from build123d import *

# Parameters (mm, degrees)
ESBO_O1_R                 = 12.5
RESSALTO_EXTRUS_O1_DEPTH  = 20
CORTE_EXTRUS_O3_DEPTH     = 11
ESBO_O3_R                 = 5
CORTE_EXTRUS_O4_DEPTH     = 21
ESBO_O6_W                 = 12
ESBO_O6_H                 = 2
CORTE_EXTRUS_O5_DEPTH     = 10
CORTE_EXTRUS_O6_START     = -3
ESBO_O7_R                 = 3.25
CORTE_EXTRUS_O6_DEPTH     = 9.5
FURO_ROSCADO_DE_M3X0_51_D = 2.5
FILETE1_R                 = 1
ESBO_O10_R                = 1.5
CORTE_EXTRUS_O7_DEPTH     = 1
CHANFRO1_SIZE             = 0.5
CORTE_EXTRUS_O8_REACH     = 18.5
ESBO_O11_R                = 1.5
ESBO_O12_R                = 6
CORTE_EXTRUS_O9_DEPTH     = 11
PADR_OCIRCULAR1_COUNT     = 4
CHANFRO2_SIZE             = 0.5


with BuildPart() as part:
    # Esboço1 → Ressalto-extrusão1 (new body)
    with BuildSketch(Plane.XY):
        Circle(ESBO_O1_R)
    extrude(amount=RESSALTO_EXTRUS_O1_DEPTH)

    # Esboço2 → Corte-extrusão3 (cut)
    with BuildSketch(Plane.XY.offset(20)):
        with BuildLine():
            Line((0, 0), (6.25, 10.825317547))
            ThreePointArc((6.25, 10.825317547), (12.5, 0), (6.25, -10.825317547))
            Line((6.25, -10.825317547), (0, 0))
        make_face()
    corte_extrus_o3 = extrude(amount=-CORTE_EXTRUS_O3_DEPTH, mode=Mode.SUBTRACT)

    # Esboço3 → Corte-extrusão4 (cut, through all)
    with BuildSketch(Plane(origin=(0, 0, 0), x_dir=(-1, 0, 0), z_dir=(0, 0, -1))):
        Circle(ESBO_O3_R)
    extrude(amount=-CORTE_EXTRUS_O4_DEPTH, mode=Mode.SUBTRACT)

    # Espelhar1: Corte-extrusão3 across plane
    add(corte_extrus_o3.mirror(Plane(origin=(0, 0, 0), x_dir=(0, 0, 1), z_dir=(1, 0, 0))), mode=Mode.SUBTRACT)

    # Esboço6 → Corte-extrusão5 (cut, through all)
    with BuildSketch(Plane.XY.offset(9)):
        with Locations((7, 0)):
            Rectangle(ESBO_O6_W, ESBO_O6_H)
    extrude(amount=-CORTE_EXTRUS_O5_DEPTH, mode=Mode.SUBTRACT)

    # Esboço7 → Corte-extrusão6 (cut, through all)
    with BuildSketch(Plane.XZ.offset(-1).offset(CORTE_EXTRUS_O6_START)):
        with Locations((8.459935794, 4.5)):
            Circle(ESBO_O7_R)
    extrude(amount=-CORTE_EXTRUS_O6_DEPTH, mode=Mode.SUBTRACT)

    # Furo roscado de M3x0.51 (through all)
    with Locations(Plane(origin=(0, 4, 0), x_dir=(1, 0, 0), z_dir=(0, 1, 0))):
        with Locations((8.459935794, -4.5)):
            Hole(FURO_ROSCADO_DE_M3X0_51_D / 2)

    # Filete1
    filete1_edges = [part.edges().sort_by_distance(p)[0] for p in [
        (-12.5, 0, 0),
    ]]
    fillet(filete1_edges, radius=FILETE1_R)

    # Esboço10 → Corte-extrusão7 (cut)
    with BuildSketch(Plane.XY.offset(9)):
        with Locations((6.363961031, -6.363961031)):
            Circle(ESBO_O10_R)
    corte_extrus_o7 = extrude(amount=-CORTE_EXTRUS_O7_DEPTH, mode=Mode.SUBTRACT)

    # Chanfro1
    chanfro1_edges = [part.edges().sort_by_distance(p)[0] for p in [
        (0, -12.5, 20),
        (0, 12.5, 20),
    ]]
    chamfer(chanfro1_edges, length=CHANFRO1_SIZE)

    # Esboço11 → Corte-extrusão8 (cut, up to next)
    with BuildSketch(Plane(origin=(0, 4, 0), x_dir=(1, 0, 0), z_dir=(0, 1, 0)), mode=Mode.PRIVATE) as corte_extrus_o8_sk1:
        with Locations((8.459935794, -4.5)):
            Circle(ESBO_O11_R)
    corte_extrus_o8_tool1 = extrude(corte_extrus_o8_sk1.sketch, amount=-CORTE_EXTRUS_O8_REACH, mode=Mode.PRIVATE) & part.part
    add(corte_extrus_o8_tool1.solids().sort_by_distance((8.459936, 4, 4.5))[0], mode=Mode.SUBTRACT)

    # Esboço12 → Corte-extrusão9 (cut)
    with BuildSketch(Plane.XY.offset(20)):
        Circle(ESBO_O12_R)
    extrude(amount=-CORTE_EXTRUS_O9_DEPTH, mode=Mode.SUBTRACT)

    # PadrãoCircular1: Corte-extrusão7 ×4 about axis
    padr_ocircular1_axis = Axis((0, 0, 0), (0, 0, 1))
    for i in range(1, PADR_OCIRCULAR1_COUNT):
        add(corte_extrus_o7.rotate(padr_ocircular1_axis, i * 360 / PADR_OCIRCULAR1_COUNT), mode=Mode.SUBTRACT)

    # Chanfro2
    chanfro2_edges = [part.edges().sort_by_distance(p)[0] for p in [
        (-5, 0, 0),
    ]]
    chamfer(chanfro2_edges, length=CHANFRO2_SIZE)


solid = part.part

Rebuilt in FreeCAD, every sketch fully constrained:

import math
import FreeCAD as App
import Part
import Sketcher
from FreeCAD import Vector
Q = App.Units.Quantity


def edges_at(feature, points):
    """Names of the edges that pass closest to the given points."""
    edges = feature.Shape.Edges
    near = lambda p: min(range(len(edges)), key=lambda i: edges[i].distToShape(Part.Vertex(*p))[0])
    return sorted({f"Edge{near(p) + 1}" for p in points})


def add_polygon(sketch, points):
    """Adds a closed chain of lines whose ends are joined by coincident constraints."""
    first, n = sketch.GeometryCount, len(points)
    for a, b in zip(points, points[1:] + points[:1]):
        sketch.addGeometry(Part.LineSegment(App.Vector(*a, 0), App.Vector(*b, 0)), False)
    for i in range(n):
        sketch.addConstraint(Sketcher.Constraint("Coincident", first + i, 2, first + (i + 1) % n, 1))

doc = App.newDocument("Part")
body = doc.addObject("PartDesign::Body", "Body")

sketch1 = doc.addObject("Sketcher::SketchObject", "Sketch")
body.addObject(sketch1)
sketch1.AttachmentSupport = (doc.XY_Plane, [""])
sketch1.MapMode = "FlatFace"
sketch1.addGeometry(Part.Circle(Vector(0, 0, 0), Vector(0, 0, 1), 12), False)
sketch1.addConstraint(Sketcher.Constraint("Coincident", 0, 3, -1, 1))
sketch1.addConstraint(Sketcher.Constraint("Diameter", 0, Q("25 mm")))
pad1 = doc.addObject("PartDesign::Pad", "Pad")
body.addObject(pad1)
pad1.Profile = sketch1
pad1.Length = 20

sketch2 = doc.addObject("Sketcher::SketchObject", "Sketch001")
body.addObject(sketch2)
sketch2.AttachmentSupport = (doc.XY_Plane, [""])
sketch2.MapMode = "FlatFace"
sketch2.AttachmentOffset = App.Placement(Vector(0, 0, 20), App.Rotation())
sketch2.addGeometry(Part.LineSegment(Vector(6, 11, 0), Vector(0, 0, 0)), False)
sketch2.addGeometry(Part.LineSegment(Vector(0, 0, 0), Vector(6, -11, 0)), False)
sketch2.addGeometry(Part.ArcOfCircle(Part.Circle(Vector(0, 0, 0), Vector(0, 0, 1), 12), math.radians(-60), math.radians(60)), False)
sketch2.addConstraint(Sketcher.Constraint("Coincident", 0, 2, 1, 1))
sketch2.addConstraint(Sketcher.Constraint("Coincident", 1, 2, 2, 1))
sketch2.addConstraint(Sketcher.Constraint("Coincident", 2, 2, 0, 1))
sketch2.addConstraint(Sketcher.Constraint("Coincident", 2, 3, -1, 1))
sketch2.addConstraint(Sketcher.Constraint("Coincident", 0, 2, -1, 1))
sketch2.addConstraint(Sketcher.Constraint("Vertical", 1, 2, 2, 2))
sketch2.addConstraint(Sketcher.Constraint("Radius", 2, Q("12.5 mm")))
sketch2.addConstraint(Sketcher.Constraint("Angle", 0, Q("-120 deg")))
pocket1 = doc.addObject("PartDesign::Pocket", "Pocket")
body.addObject(pocket1)
pocket1.Profile = sketch2
pocket1.Length = 11

sketch3 = doc.addObject("Sketcher::SketchObject", "Sketch002")
body.addObject(sketch3)
sketch3.AttachmentSupport = (doc.XY_Plane, [""])
sketch3.MapMode = "FlatFace"
sketch3.addGeometry(Part.Circle(Vector(0, 0, 0), Vector(0, 0, 1), 5), False)
sketch3.addConstraint(Sketcher.Constraint("Coincident", 0, 3, -1, 1))
sketch3.addConstraint(Sketcher.Constraint("Diameter", 0, Q("10 mm")))
pocket2 = doc.addObject("PartDesign::Pocket", "Pocket001")
body.addObject(pocket2)
pocket2.Profile = sketch3
pocket2.Type = "ThroughAll"
pocket2.Reversed = True
doc.recompute()

mirrored = doc.addObject("PartDesign::Mirrored", "Mirrored")
body.addObject(mirrored)
mirrored.Originals = [pocket1]
mirrored.MirrorPlane = (doc.YZ_Plane, [""])
body.Tip = mirrored

sketch4 = doc.addObject("Sketcher::SketchObject", "Sketch003")
body.addObject(sketch4)
sketch4.AttachmentSupport = (doc.XY_Plane, [""])
sketch4.MapMode = "FlatFace"
sketch4.AttachmentOffset = App.Placement(Vector(0, 0, 9), App.Rotation())
add_polygon(sketch4, [(1, 1), (1, -1), (13, -1), (13, 1)])
sketch4.addConstraint(Sketcher.Constraint("Vertical", 0))
sketch4.addConstraint(Sketcher.Constraint("Horizontal", 1))
sketch4.addConstraint(Sketcher.Constraint("Vertical", 2))
sketch4.addConstraint(Sketcher.Constraint("Horizontal", 3))
sketch4.addConstraint(Sketcher.Constraint("DistanceX", 1, 1, 1, 2, Q("12 mm")))
sketch4.addConstraint(Sketcher.Constraint("DistanceY", 0, 2, 0, 1, Q("2 mm")))
sketch4.addConstraint(Sketcher.Constraint("DistanceX", -1, 1, 0, 2, Q("1 mm")))
sketch4.addConstraint(Sketcher.Constraint("DistanceY", 0, 2, -1, 1, Q("1 mm")))
pocket3 = doc.addObject("PartDesign::Pocket", "Pocket002")
body.addObject(pocket3)
pocket3.Profile = sketch4
pocket3.Type = "ThroughAll"

sketch5 = doc.addObject("Sketcher::SketchObject", "Sketch004")
body.addObject(sketch5)
sketch5.AttachmentSupport = (doc.XZ_Plane, [""])
sketch5.MapMode = "FlatFace"
sketch5.AttachmentOffset = App.Placement(Vector(0, 0, -4), App.Rotation())
sketch5.addGeometry(Part.Circle(Vector(8.5, 4.5, 0), Vector(0, 0, 1), 3.2), False)
sketch5.addConstraint(Sketcher.Constraint("Diameter", 0, Q("6.5 mm")))
sketch5.addConstraint(Sketcher.Constraint("DistanceY", -1, 1, 0, 3, Q("4.5 mm")))
sketch5.addConstraint(Sketcher.Constraint("DistanceX", -1, 1, 0, 3, Q("8.459936 mm")))
pocket4 = doc.addObject("PartDesign::Pocket", "Pocket003")
body.addObject(pocket4)
pocket4.Profile = sketch5
pocket4.Type = "ThroughAll"

sketch6 = doc.addObject("Sketcher::SketchObject", "Sketch005")
body.addObject(sketch6)
sketch6.AttachmentSupport = (doc.XZ_Plane, [""])
sketch6.MapMode = "FlatFace"
sketch6.AttachmentOffset = App.Placement(Vector(0, 0, -4), App.Rotation())
sketch6.addGeometry(Part.Circle(Vector(8.5, 4.5, 0), Vector(0, 0, 1), 1.2), False)
sketch6.addConstraint(Sketcher.Constraint("Diameter", 0, Q("2.5 mm")))
sketch6.addConstraint(Sketcher.Constraint("DistanceY", -1, 1, 0, 3, Q("4.5 mm")))
sketch6.addConstraint(Sketcher.Constraint("DistanceX", -1, 1, 0, 3, Q("8.459936 mm")))
doc.recompute()
hole = doc.addObject("PartDesign::Hole", "Hole")
body.addObject(hole)
hole.Profile = sketch6
hole.ThreadType = "None"
hole.Diameter = 2.5
hole.DepthType = "ThroughAll"
hole.Reversed = True
doc.recompute()

fillet = doc.addObject("PartDesign::Fillet", "Fillet")
body.addObject(fillet)
fillet.Base = (hole, edges_at(hole, [(-12.5, 0, 0)]))
fillet.Radius = 1

sketch7 = doc.addObject("Sketcher::SketchObject", "Sketch006")
body.addObject(sketch7)
sketch7.AttachmentSupport = (doc.XY_Plane, [""])
sketch7.MapMode = "FlatFace"
sketch7.AttachmentOffset = App.Placement(Vector(0, 0, 9), App.Rotation())
sketch7.addGeometry(Part.Circle(Vector(6.4, -6.4, 0), Vector(0, 0, 1), 1.5), False)
sketch7.addConstraint(Sketcher.Constraint("Diameter", 0, Q("3 mm")))
sketch7.addConstraint(Sketcher.Constraint("DistanceX", -1, 1, 0, 3, Q("6.363961 mm")))
sketch7.addConstraint(Sketcher.Constraint("DistanceY", 0, 3, -1, 1, Q("6.363961 mm")))
pocket5 = doc.addObject("PartDesign::Pocket", "Pocket004")
body.addObject(pocket5)
pocket5.Profile = sketch7
pocket5.Length = 1
doc.recompute()

chamfer = doc.addObject("PartDesign::Chamfer", "Chamfer")
body.addObject(chamfer)
chamfer.Base = (pocket5, edges_at(pocket5, [(0, -12.5, 20), (0, 12.5, 20)]))
chamfer.Size = 0.5

sketch8 = doc.addObject("Sketcher::SketchObject", "Sketch007")
body.addObject(sketch8)
sketch8.AttachmentSupport = (doc.XZ_Plane, [""])
sketch8.MapMode = "FlatFace"
sketch8.AttachmentOffset = App.Placement(Vector(0, 0, -4), App.Rotation())
sketch8.addGeometry(Part.Circle(Vector(8.5, 4.5, 0), Vector(0, 0, 1), 1.5), False)
sketch8.addConstraint(Sketcher.Constraint("Diameter", 0, Q("3 mm")))
sketch8.addConstraint(Sketcher.Constraint("DistanceY", -1, 1, 0, 3, Q("4.5 mm")))
sketch8.addConstraint(Sketcher.Constraint("DistanceX", -1, 1, 0, 3, Q("8.459936 mm")))
pocket6 = doc.addObject("PartDesign::Pocket", "Pocket005")
body.addObject(pocket6)
pocket6.Profile = sketch8
pocket6.Length = 3
pocket6.Reversed = True

sketch9 = doc.addObject("Sketcher::SketchObject", "Sketch008")
body.addObject(sketch9)
sketch9.AttachmentSupport = (doc.XY_Plane, [""])
sketch9.MapMode = "FlatFace"
sketch9.AttachmentOffset = App.Placement(Vector(0, 0, 20), App.Rotation())
sketch9.addGeometry(Part.Circle(Vector(0, 0, 0), Vector(0, 0, 1), 6), False)
sketch9.addConstraint(Sketcher.Constraint("Coincident", 0, 3, -1, 1))
sketch9.addConstraint(Sketcher.Constraint("Diameter", 0, Q("12 mm")))
pocket7 = doc.addObject("PartDesign::Pocket", "Pocket006")
body.addObject(pocket7)
pocket7.Profile = sketch9
pocket7.Length = 11
doc.recompute()

polarpattern = doc.addObject("PartDesign::PolarPattern", "PolarPattern")
body.addObject(polarpattern)
polarpattern.Originals = [pocket5]
polarpattern.Axis = (doc.Z_Axis, [""])
polarpattern.Angle = 360
polarpattern.Occurrences = 4
body.Tip = polarpattern
doc.recompute()

chamfer2 = doc.addObject("PartDesign::Chamfer", "Chamfer001")
body.addObject(chamfer2)
chamfer2.Base = (polarpattern, edges_at(polarpattern, [(-5, 0, 0)]))
chamfer2.Size = 0.5

doc.recompute()
